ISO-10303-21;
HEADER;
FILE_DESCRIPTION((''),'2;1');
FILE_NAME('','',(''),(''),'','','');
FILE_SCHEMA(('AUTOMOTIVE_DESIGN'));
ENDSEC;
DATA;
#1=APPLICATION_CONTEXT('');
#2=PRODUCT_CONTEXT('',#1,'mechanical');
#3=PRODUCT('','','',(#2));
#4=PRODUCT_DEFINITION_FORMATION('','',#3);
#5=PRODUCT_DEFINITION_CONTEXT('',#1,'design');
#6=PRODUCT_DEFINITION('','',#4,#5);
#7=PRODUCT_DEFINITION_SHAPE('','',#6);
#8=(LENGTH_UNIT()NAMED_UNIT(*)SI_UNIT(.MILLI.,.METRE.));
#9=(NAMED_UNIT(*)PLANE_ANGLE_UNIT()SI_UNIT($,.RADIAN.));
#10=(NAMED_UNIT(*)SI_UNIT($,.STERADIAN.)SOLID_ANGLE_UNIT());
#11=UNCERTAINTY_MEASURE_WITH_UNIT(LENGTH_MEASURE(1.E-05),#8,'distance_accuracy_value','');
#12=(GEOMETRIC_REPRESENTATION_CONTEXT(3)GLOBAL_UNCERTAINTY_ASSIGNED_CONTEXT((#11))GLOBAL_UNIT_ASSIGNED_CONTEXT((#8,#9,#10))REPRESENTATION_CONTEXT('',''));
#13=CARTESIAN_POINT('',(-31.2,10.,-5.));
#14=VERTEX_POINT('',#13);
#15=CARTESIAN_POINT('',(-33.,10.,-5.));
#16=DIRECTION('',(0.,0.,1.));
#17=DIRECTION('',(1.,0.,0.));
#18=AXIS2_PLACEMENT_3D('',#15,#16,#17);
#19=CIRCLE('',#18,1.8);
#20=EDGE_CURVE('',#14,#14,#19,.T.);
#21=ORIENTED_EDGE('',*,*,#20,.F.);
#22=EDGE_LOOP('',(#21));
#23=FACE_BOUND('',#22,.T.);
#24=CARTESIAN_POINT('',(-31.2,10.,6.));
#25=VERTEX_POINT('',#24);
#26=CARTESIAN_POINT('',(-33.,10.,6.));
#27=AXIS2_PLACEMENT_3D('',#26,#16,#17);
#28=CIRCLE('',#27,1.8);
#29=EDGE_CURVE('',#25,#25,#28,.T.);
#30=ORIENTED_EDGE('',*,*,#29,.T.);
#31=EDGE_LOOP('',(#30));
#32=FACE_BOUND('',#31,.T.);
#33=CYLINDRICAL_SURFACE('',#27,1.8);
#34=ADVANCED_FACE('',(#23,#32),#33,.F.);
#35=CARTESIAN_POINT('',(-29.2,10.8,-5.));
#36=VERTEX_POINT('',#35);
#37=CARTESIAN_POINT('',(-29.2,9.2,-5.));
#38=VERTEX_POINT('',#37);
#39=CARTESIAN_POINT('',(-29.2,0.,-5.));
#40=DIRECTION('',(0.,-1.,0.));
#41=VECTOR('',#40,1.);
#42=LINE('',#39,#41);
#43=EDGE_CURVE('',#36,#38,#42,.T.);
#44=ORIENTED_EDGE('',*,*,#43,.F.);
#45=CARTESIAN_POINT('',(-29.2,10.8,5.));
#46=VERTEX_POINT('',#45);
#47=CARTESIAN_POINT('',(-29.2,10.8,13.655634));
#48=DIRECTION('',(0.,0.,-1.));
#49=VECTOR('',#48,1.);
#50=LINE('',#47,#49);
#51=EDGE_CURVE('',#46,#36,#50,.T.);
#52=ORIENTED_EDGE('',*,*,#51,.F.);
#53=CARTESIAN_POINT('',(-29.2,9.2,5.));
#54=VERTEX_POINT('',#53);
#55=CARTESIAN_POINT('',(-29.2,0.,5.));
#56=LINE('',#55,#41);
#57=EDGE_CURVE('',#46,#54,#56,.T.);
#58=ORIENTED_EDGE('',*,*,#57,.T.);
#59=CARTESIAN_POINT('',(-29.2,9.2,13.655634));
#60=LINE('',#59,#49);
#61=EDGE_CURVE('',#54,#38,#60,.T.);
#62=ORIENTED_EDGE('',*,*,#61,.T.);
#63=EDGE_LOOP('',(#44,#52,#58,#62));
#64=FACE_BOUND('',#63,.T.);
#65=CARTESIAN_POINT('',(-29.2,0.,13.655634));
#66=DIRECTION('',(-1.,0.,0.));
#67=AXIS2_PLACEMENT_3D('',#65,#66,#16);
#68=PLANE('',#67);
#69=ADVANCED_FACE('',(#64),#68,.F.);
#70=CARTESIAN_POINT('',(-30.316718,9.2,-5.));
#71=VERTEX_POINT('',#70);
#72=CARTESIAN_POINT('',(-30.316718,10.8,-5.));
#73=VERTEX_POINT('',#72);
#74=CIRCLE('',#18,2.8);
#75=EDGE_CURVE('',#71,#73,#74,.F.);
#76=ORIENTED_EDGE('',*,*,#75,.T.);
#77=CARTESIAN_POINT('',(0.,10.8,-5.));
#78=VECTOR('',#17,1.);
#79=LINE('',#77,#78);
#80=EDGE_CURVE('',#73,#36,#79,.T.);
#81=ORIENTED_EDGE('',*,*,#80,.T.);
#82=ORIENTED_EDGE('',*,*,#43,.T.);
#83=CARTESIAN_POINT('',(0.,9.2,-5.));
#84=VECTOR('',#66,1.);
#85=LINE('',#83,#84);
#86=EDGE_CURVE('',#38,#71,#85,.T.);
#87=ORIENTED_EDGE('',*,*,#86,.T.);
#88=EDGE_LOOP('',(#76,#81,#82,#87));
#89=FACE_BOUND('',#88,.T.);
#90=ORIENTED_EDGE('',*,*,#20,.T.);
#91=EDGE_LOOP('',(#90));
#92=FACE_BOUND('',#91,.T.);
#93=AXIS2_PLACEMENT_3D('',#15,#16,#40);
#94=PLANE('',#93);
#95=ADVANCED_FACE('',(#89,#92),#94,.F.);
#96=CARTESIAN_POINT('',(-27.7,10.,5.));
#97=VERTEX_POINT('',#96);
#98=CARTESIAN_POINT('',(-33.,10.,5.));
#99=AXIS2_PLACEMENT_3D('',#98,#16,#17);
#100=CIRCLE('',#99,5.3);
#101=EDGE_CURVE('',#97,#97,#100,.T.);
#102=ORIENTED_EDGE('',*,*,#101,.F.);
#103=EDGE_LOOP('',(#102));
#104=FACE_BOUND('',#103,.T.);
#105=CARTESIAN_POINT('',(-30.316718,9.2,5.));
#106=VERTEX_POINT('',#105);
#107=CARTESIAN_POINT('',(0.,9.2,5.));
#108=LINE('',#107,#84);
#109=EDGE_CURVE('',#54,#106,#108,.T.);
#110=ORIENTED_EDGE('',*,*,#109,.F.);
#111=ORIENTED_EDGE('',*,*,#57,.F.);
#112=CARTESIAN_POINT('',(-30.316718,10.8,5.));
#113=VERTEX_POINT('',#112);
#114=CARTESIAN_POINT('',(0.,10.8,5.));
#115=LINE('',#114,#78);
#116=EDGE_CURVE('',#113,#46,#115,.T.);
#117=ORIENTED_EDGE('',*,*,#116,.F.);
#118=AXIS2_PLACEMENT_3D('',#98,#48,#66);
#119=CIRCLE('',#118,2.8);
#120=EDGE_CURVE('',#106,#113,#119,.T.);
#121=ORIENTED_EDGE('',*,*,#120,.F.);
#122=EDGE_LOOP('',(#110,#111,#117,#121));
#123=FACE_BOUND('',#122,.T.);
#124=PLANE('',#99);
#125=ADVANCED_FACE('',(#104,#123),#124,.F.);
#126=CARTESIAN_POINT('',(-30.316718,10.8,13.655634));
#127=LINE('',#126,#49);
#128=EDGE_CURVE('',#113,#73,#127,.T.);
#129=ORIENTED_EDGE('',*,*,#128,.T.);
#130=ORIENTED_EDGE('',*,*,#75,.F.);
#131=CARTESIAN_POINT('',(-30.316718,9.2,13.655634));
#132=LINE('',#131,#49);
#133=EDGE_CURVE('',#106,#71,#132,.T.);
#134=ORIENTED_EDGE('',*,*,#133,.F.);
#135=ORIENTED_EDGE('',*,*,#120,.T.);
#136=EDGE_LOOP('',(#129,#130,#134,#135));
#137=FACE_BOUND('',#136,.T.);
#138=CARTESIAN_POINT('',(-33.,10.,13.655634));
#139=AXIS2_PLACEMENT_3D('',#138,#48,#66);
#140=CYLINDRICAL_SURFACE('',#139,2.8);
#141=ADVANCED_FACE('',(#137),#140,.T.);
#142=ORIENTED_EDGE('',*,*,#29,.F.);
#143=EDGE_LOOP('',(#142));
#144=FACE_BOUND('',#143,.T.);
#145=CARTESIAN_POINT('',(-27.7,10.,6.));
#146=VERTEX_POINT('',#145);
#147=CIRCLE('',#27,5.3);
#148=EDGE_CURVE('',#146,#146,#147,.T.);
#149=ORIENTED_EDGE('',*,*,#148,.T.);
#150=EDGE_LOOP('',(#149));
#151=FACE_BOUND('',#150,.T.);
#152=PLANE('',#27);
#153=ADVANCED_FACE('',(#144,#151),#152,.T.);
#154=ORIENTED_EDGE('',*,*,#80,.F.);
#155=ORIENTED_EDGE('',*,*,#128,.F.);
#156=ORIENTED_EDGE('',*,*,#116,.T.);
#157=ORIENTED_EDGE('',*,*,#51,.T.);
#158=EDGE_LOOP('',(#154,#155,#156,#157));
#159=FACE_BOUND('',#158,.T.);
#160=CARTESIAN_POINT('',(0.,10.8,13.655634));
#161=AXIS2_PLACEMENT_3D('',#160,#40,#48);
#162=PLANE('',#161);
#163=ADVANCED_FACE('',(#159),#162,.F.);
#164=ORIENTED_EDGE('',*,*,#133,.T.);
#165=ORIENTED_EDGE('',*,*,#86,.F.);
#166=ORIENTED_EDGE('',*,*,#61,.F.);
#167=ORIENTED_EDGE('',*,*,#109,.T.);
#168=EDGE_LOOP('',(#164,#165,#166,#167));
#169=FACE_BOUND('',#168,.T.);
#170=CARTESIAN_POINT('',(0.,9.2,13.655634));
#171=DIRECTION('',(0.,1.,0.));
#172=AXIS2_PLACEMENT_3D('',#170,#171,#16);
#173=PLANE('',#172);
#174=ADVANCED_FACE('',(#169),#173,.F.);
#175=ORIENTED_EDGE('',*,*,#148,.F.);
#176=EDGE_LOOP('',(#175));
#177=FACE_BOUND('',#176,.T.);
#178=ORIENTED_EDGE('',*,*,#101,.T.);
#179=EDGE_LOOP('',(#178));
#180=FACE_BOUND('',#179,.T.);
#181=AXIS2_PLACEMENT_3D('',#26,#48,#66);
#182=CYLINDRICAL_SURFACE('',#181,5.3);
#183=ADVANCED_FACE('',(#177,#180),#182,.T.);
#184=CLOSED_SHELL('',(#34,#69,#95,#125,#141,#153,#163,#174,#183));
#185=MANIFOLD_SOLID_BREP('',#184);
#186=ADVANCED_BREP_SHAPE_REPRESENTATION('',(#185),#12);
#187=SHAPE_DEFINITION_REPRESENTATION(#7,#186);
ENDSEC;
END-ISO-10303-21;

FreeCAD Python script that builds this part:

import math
import FreeCAD as App
import Part
import Sketcher
from FreeCAD import Vector
Q = App.Units.Quantity

doc = App.newDocument("Part")
params = doc.addObject("Spreadsheet::Sheet", "Params")
for row, (alias, value) in enumerate([
    ("sketch1_diameter", "3.5 mm"),
    ("sketch1_radius", "2.8 mm"),
    ("sketch1_height", "1.6 mm"),
    ("pad1_length", "5 mm"),
    ("pad1_length2", "5 mm"),
    ("sketch2_diameter", "10.6 mm"),
    ("sketch2_diameter2", "3.5 mm"),
    ("pad2_length", "1 mm"),
    ("sketch3_diameter", "3.6 mm"),
    ("hole_diameter", "3.6 mm"),
], start=1):
    params.set(f"A{row}", alias)
    params.set(f"B{row}", "=" + value)
    params.setAlias(f"B{row}", alias)

body = doc.addObject("PartDesign::Body", "Body")

sketch1 = body.newObject("Sketcher::SketchObject", "Sketch")
sketch1.AttachmentSupport = (doc.getObject("XY_Plane"), [""])
sketch1.MapMode = "FlatFace"
sketch1.addGeometry([
    Part.LineSegment(Vector(-29.2, 10.8, 0), Vector(-30.316718, 10.8, 0)),
    Part.ArcOfCircle(Part.Circle(Vector(-33, 10, 0), Vector(0, 0, 1), 2.8), math.radians(16.60155), math.radians(343.39845)),
    Part.LineSegment(Vector(-30.316718, 9.2, 0), Vector(-29.2, 9.2, 0)),
    Part.LineSegment(Vector(-29.2, 9.2, 0), Vector(-29.2, 10.8, 0)),
    Part.Circle(Vector(-33, 10, 0), Vector(0, 0, 1), 1.75),
], False)
sketch1.addConstraint([
    Sketcher.Constraint("Coincident", 0, 2, 1, 1),
    Sketcher.Constraint("Coincident", 1, 2, 2, 1),
    Sketcher.Constraint("Coincident", 2, 2, 3, 1),
    Sketcher.Constraint("Coincident", 3, 2, 0, 1),
    Sketcher.Constraint("Horizontal", 0),
    Sketcher.Constraint("Horizontal", 2),
    Sketcher.Constraint("Vertical", 3),
    Sketcher.Constraint("Coincident", 4, 3, 1, 3),
    Sketcher.Constraint("Vertical", 0, 2, 1, 2),
    Sketcher.Constraint("Diameter", 4, Q("3.5 mm")),
    Sketcher.Constraint("Radius", 1, Q("2.8 mm")),
    Sketcher.Constraint("DistanceY", 3, 1, 3, 2, Q("1.6 mm")),
    Sketcher.Constraint("DistanceX", 1, 3, -1, 1, Q("33 mm")),
    Sketcher.Constraint("DistanceY", -1, 1, 1, 3, Q("10 mm")),
    Sketcher.Constraint("DistanceX", 2, 2, -1, 1, Q("29.2 mm")),
])
sketch1.setExpression("Constraints[9]", "Params.sketch1_diameter")
sketch1.setExpression("Constraints[10]", "Params.sketch1_radius")
sketch1.setExpression("Constraints[11]", "Params.sketch1_height")
pad1 = body.newObject("PartDesign::Pad", "Pad")
pad1.Profile = sketch1
pad1.Type = "TwoLengths"
pad1.setExpression("Length", "Params.pad1_length")
pad1.setExpression("Length2", "Params.pad1_length2")

sketch2 = body.newObject("Sketcher::SketchObject", "Sketch001")
sketch2.AttachmentSupport = (doc.getObject("XY_Plane"), [""])
sketch2.MapMode = "FlatFace"
sketch2.AttachmentOffset = App.Placement(Vector(0, 0, 5), App.Rotation())
sketch2.addGeometry([
    Part.Circle(Vector(-33, 10, 0), Vector(0, 0, 1), 5.3),
    Part.Circle(Vector(-33, 10, 0), Vector(0, 0, 1), 1.75),
], False)
sketch2.addConstraint([
    Sketcher.Constraint("Coincident", 1, 3, 0, 3),
    Sketcher.Constraint("Diameter", 0, Q("10.6 mm")),
    Sketcher.Constraint("Diameter", 1, Q("3.5 mm")),
    Sketcher.Constraint("DistanceX", 0, 3, -1, 1, Q("33 mm")),
    Sketcher.Constraint("DistanceY", -1, 1, 0, 3, Q("10 mm")),
])
sketch2.setExpression("Constraints[1]", "Params.sketch2_diameter")
sketch2.setExpression("Constraints[2]", "Params.sketch2_diameter2")
pad2 = body.newObject("PartDesign::Pad", "Pad001")
pad2.Profile = sketch2
pad2.setExpression("Length", "Params.pad2_length")

sketch3 = body.newObject("Sketcher::SketchObject", "Sketch002")
sketch3.AttachmentSupport = (doc.getObject("XY_Plane"), [""])
sketch3.MapMode = "FlatFace"
sketch3.AttachmentOffset = App.Placement(Vector(0, 0, 6), App.Rotation())
sketch3.addGeometry(Part.Circle(Vector(-33, 10, 0), Vector(0, 0, 1), 1.8), False)
sketch3.addConstraint([
    Sketcher.Constraint("Diameter", 0, Q("3.6 mm")),
    Sketcher.Constraint("DistanceX", 0, 3, -1, 1, Q("33 mm")),
    Sketcher.Constraint("DistanceY", -1, 1, 0, 3, Q("10 mm")),
])
sketch3.setExpression("Constraints[0]", "Params.sketch3_diameter")
doc.recompute()
hole = body.newObject("PartDesign::Hole", "Hole")
hole.Profile = sketch3
hole.ThreadType = "None"
hole.setExpression("Diameter", "Params.hole_diameter")
hole.DepthType = "ThroughAll"

doc.recompute()
